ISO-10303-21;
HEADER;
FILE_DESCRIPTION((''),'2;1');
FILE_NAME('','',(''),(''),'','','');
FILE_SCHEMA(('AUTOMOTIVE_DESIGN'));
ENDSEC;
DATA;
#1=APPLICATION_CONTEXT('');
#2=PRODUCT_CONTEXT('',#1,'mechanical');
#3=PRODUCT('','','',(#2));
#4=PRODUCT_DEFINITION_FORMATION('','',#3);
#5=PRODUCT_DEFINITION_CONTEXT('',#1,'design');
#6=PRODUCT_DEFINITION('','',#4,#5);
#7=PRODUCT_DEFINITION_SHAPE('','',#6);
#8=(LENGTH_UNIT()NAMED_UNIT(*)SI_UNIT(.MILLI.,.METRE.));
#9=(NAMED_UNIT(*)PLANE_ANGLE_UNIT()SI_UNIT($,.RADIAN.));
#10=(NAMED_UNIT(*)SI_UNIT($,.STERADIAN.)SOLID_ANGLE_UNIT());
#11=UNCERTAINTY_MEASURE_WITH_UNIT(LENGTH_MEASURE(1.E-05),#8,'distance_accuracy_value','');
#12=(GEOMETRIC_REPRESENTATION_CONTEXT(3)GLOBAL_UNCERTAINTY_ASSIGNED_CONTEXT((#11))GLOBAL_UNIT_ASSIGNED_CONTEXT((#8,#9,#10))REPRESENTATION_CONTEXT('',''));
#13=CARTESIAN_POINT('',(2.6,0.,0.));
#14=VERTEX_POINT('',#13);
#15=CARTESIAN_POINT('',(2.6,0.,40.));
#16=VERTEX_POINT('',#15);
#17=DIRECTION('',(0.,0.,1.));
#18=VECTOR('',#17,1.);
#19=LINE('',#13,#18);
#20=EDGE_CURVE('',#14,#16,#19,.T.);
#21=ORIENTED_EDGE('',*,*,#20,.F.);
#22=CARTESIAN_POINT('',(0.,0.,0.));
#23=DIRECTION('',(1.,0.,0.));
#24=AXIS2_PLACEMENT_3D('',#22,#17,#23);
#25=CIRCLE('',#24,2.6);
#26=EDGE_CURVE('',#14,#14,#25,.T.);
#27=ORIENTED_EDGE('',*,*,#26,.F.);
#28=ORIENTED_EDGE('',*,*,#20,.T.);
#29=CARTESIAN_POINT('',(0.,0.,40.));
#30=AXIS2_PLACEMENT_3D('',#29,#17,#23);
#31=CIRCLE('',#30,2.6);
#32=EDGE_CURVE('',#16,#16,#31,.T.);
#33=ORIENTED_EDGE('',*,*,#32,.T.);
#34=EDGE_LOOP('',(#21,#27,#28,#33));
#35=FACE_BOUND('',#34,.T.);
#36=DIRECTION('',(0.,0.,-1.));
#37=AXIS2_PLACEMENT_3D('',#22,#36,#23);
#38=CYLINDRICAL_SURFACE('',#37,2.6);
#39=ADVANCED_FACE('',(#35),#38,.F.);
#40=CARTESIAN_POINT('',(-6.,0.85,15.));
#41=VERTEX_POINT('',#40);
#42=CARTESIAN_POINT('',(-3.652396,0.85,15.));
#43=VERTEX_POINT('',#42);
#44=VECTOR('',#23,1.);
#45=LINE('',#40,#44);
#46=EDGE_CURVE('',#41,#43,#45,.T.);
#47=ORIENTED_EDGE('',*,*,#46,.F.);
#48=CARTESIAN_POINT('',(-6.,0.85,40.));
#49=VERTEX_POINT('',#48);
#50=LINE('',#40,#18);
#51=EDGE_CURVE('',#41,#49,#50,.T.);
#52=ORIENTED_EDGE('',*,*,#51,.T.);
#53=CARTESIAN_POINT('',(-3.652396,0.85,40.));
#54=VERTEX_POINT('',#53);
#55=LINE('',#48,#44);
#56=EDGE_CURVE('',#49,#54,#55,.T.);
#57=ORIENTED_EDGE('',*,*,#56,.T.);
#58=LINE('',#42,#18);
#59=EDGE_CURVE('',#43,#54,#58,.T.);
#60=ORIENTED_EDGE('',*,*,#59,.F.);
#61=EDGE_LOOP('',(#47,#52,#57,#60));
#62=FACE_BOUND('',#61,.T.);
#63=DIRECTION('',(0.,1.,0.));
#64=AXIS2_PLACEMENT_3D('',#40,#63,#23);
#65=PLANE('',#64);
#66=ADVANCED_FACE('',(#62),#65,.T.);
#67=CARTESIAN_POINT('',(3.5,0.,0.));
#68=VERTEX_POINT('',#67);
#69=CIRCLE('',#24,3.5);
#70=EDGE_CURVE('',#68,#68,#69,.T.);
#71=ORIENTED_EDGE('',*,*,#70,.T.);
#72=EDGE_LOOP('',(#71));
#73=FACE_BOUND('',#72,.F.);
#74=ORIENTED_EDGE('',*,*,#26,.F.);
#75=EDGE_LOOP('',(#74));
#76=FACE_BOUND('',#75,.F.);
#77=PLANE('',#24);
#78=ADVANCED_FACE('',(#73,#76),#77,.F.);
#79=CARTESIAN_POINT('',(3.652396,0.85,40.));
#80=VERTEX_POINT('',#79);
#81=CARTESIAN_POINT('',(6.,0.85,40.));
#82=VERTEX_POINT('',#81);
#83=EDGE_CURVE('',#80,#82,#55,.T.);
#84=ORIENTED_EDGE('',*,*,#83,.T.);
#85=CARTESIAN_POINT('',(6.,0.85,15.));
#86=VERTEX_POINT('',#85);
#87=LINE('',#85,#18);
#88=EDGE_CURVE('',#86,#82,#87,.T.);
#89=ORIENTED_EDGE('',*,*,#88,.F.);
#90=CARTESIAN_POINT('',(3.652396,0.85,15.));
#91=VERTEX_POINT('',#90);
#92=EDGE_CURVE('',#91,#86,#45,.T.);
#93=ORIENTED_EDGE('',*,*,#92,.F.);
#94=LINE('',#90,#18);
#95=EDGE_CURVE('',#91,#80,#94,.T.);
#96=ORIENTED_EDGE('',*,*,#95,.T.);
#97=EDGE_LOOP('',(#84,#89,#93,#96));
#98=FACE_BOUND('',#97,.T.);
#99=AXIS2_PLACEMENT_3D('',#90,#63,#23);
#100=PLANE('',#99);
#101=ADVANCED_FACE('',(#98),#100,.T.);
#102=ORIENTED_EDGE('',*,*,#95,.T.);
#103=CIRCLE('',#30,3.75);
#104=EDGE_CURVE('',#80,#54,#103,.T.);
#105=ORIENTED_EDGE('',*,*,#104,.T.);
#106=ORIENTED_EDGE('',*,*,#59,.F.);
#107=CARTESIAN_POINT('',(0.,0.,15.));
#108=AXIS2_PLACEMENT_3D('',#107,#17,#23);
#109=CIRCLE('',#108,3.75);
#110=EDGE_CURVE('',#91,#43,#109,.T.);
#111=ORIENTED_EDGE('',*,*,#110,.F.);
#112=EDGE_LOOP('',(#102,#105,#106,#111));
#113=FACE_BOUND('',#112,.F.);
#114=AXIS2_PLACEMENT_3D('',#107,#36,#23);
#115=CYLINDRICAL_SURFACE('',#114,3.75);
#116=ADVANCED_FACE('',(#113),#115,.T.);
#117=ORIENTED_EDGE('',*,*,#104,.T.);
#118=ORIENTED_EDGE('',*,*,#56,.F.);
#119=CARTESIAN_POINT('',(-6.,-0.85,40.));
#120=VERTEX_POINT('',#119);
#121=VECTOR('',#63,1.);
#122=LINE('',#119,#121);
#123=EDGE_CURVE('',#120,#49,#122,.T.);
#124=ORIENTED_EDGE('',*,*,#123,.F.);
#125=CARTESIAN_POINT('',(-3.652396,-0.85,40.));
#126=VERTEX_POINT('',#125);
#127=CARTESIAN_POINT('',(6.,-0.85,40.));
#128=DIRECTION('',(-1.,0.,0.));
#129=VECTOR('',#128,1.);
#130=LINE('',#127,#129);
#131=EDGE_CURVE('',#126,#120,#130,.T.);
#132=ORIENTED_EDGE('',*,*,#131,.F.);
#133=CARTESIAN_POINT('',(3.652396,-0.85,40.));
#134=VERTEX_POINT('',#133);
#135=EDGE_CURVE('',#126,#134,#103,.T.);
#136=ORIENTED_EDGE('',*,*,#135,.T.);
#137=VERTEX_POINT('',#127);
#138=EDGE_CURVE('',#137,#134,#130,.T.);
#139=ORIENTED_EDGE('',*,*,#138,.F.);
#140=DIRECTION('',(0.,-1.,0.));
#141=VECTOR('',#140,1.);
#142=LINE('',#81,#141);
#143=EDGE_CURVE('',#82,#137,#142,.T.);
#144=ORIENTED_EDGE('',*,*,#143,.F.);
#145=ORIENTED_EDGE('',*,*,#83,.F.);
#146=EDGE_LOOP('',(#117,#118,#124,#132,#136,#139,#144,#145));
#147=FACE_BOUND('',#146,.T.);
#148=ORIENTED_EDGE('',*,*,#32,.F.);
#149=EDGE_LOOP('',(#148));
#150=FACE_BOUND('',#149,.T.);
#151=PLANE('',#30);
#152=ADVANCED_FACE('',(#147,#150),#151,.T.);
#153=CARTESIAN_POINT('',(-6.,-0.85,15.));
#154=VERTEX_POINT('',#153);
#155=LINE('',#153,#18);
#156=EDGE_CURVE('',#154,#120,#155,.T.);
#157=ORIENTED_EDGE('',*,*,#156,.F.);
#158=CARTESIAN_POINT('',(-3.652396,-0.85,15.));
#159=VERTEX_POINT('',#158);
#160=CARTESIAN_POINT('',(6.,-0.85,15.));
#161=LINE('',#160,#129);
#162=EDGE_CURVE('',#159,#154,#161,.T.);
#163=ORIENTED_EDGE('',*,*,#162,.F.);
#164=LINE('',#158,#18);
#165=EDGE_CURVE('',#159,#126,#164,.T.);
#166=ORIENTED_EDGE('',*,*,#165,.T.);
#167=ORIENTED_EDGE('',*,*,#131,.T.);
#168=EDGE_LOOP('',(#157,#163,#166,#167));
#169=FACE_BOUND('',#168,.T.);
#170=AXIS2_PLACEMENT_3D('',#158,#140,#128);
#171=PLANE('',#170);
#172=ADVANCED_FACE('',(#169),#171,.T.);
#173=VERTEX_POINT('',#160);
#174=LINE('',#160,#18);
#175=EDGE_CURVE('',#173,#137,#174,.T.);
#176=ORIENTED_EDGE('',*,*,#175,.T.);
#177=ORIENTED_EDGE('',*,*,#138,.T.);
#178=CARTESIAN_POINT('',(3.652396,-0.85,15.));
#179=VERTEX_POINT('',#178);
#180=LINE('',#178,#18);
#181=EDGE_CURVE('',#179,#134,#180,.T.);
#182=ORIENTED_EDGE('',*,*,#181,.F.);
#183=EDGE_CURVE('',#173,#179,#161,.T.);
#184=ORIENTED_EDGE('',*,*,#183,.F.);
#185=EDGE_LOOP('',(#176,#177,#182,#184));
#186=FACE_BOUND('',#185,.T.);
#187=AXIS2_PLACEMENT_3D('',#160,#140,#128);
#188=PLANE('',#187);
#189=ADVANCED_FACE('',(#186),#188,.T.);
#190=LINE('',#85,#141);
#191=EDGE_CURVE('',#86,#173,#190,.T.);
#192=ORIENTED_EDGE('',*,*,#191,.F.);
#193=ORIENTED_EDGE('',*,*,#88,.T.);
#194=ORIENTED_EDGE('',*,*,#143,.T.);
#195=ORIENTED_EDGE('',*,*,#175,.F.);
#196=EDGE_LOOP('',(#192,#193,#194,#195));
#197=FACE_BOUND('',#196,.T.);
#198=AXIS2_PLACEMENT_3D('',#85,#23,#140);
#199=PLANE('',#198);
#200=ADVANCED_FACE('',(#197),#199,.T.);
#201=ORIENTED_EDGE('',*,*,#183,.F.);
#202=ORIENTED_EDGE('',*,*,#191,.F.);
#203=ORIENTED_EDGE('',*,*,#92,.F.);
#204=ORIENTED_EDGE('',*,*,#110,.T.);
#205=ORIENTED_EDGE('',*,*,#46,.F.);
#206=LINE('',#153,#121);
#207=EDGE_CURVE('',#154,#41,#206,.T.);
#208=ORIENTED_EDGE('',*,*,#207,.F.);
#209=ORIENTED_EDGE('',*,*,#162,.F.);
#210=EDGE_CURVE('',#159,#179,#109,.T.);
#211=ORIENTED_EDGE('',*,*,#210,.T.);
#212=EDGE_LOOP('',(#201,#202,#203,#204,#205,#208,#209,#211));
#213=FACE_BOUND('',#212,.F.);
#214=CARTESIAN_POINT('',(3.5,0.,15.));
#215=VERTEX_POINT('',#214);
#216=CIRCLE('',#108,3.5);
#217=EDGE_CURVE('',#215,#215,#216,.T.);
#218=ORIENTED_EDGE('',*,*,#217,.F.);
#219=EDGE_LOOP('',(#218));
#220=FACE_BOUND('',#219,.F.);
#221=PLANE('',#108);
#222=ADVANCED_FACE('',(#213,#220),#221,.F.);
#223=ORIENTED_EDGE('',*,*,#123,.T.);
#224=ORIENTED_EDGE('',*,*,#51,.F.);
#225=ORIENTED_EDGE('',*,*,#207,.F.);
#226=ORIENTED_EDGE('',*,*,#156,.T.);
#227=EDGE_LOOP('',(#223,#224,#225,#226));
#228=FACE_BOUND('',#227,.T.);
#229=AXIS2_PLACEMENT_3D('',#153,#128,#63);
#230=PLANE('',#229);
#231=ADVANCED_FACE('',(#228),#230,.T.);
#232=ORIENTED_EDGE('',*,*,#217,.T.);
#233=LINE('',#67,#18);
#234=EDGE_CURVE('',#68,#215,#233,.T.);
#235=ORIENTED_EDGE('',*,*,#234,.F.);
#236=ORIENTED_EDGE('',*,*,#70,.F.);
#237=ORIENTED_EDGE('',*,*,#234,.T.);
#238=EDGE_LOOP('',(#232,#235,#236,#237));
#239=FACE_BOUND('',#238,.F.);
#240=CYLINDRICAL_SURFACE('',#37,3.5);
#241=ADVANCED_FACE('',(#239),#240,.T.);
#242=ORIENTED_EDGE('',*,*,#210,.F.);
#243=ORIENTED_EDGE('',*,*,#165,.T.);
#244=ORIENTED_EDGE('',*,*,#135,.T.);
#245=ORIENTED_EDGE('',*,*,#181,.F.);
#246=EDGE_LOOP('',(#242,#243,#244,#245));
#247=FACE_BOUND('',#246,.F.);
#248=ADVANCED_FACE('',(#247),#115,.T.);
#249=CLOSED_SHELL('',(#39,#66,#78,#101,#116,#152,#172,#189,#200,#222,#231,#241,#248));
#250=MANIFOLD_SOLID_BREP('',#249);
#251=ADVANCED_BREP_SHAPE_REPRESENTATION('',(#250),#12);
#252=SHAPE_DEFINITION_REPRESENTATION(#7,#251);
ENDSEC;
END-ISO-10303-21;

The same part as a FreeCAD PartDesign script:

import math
import FreeCAD as App
import Part
import Sketcher

doc = App.newDocument("Part")
body = doc.addObject("PartDesign::Body", "Body")

sketch1 = body.newObject("Sketcher::SketchObject", "Sketch")
sketch1.AttachmentSupport = (doc.getObject("XY_Plane"), [""])
sketch1.MapMode = "FlatFace"
sketch1.addGeometry(Part.Circle(App.Vector(0, 0, 0), App.Vector(0, 0, 1), 3.5), False)
sketch1.addGeometry(Part.Circle(App.Vector(0, 0, 0), App.Vector(0, 0, 1), 2.6), False)
sketch1.addConstraint(Sketcher.Constraint("Coincident", 0, 3, -1, 1))
sketch1.addConstraint(Sketcher.Constraint("Coincident", 1, 3, -1, 1))
sketch1.addConstraint(Sketcher.Constraint("Diameter", 0, 7.0))
sketch1.addConstraint(Sketcher.Constraint("Diameter", 1, 5.2))
pad1 = body.newObject("PartDesign::Pad", "Pad")
pad1.Profile = sketch1
pad1.Length = 15

sketch2 = body.newObject("Sketcher::SketchObject", "Sketch001")
sketch2.AttachmentSupport = (doc.getObject("XY_Plane"), [""])
sketch2.MapMode = "FlatFace"
sketch2.AttachmentOffset = App.Placement(App.Vector(0, 0, 15), App.Rotation())
sketch2.addGeometry(Part.ArcOfCircle(Part.Circle(App.Vector(0, 0, 0), App.Vector(0, 0, 1), 3.75), math.radians(13.100904), math.radians(166.899096)), False)
sketch2.addGeometry(Part.LineSegment(App.Vector(-3.652396, 0.85, 0), App.Vector(-6, 0.85, 0)), False)
sketch2.addGeometry(Part.LineSegment(App.Vector(-6, 0.85, 0), App.Vector(-6, -0.85, 0)), False)
sketch2.addGeometry(Part.LineSegment(App.Vector(-6, -0.85, 0), App.Vector(-3.652396, -0.85, 0)), False)
sketch2.addGeometry(Part.ArcOfCircle(Part.Circle(App.Vector(0, 0, 0), App.Vector(0, 0, 1), 3.75), math.radians(-166.899096), math.radians(-13.100904)), False)
sketch2.addGeometry(Part.LineSegment(App.Vector(3.652396, -0.85, 0), App.Vector(6, -0.85, 0)), False)
sketch2.addGeometry(Part.LineSegment(App.Vector(6, -0.85, 0), App.Vector(6, 0.85, 0)), False)
sketch2.addGeometry(Part.LineSegment(App.Vector(6, 0.85, 0), App.Vector(3.652396, 0.85, 0)), False)
sketch2.addGeometry(Part.Circle(App.Vector(0, 0, 0), App.Vector(0, 0, 1), 2.6), False)
sketch2.addConstraint(Sketcher.Constraint("Coincident", 0, 2, 1, 1))
sketch2.addConstraint(Sketcher.Constraint("Coincident", 1, 2, 2, 1))
sketch2.addConstraint(Sketcher.Constraint("Coincident", 2, 2, 3, 1))
sketch2.addConstraint(Sketcher.Constraint("Coincident", 3, 2, 4, 1))
sketch2.addConstraint(Sketcher.Constraint("Coincident", 4, 2, 5, 1))
sketch2.addConstraint(Sketcher.Constraint("Coincident", 5, 2, 6, 1))
sketch2.addConstraint(Sketcher.Constraint("Coincident", 6, 2, 7, 1))
sketch2.addConstraint(Sketcher.Constraint("Coincident", 7, 2, 0, 1))
sketch2.addConstraint(Sketcher.Constraint("Horizontal", 1))
sketch2.addConstraint(Sketcher.Constraint("Vertical", 2))
sketch2.addConstraint(Sketcher.Constraint("Horizontal", 3))
sketch2.addConstraint(Sketcher.Constraint("Horizontal", 5))
sketch2.addConstraint(Sketcher.Constraint("Vertical", 6))
sketch2.addConstraint(Sketcher.Constraint("Horizontal", 7))
sketch2.addConstraint(Sketcher.Constraint("Coincident", 0, 3, -1, 1))
sketch2.addConstraint(Sketcher.Constraint("Coincident", 4, 3, -1, 1))
sketch2.addConstraint(Sketcher.Constraint("Coincident", 8, 3, -1, 1))
sketch2.addConstraint(Sketcher.Constraint("Equal", 0, 4))
sketch2.addConstraint(Sketcher.Constraint("Symmetric", 1, 2, 5, 2, -1, 1))
sketch2.addConstraint(Sketcher.Constraint("Horizontal", 3, 2, 4, 2))
sketch2.addConstraint(Sketcher.Constraint("Horizontal", 1, 2, 6, 2))
sketch2.addConstraint(Sketcher.Constraint("Radius", 0, 3.75))
sketch2.addConstraint(Sketcher.Constraint("DistanceY", 2, 2, 2, 1, 1.7))
sketch2.addConstraint(Sketcher.Constraint("Diameter", 8, 5.2))
sketch2.addConstraint(Sketcher.Constraint("DistanceX", 1, 2, -1, 1, 6.0))
pad2 = body.newObject("PartDesign::Pad", "Pad001")
pad2.Profile = sketch2
pad2.Length = 25

doc.recompute()
